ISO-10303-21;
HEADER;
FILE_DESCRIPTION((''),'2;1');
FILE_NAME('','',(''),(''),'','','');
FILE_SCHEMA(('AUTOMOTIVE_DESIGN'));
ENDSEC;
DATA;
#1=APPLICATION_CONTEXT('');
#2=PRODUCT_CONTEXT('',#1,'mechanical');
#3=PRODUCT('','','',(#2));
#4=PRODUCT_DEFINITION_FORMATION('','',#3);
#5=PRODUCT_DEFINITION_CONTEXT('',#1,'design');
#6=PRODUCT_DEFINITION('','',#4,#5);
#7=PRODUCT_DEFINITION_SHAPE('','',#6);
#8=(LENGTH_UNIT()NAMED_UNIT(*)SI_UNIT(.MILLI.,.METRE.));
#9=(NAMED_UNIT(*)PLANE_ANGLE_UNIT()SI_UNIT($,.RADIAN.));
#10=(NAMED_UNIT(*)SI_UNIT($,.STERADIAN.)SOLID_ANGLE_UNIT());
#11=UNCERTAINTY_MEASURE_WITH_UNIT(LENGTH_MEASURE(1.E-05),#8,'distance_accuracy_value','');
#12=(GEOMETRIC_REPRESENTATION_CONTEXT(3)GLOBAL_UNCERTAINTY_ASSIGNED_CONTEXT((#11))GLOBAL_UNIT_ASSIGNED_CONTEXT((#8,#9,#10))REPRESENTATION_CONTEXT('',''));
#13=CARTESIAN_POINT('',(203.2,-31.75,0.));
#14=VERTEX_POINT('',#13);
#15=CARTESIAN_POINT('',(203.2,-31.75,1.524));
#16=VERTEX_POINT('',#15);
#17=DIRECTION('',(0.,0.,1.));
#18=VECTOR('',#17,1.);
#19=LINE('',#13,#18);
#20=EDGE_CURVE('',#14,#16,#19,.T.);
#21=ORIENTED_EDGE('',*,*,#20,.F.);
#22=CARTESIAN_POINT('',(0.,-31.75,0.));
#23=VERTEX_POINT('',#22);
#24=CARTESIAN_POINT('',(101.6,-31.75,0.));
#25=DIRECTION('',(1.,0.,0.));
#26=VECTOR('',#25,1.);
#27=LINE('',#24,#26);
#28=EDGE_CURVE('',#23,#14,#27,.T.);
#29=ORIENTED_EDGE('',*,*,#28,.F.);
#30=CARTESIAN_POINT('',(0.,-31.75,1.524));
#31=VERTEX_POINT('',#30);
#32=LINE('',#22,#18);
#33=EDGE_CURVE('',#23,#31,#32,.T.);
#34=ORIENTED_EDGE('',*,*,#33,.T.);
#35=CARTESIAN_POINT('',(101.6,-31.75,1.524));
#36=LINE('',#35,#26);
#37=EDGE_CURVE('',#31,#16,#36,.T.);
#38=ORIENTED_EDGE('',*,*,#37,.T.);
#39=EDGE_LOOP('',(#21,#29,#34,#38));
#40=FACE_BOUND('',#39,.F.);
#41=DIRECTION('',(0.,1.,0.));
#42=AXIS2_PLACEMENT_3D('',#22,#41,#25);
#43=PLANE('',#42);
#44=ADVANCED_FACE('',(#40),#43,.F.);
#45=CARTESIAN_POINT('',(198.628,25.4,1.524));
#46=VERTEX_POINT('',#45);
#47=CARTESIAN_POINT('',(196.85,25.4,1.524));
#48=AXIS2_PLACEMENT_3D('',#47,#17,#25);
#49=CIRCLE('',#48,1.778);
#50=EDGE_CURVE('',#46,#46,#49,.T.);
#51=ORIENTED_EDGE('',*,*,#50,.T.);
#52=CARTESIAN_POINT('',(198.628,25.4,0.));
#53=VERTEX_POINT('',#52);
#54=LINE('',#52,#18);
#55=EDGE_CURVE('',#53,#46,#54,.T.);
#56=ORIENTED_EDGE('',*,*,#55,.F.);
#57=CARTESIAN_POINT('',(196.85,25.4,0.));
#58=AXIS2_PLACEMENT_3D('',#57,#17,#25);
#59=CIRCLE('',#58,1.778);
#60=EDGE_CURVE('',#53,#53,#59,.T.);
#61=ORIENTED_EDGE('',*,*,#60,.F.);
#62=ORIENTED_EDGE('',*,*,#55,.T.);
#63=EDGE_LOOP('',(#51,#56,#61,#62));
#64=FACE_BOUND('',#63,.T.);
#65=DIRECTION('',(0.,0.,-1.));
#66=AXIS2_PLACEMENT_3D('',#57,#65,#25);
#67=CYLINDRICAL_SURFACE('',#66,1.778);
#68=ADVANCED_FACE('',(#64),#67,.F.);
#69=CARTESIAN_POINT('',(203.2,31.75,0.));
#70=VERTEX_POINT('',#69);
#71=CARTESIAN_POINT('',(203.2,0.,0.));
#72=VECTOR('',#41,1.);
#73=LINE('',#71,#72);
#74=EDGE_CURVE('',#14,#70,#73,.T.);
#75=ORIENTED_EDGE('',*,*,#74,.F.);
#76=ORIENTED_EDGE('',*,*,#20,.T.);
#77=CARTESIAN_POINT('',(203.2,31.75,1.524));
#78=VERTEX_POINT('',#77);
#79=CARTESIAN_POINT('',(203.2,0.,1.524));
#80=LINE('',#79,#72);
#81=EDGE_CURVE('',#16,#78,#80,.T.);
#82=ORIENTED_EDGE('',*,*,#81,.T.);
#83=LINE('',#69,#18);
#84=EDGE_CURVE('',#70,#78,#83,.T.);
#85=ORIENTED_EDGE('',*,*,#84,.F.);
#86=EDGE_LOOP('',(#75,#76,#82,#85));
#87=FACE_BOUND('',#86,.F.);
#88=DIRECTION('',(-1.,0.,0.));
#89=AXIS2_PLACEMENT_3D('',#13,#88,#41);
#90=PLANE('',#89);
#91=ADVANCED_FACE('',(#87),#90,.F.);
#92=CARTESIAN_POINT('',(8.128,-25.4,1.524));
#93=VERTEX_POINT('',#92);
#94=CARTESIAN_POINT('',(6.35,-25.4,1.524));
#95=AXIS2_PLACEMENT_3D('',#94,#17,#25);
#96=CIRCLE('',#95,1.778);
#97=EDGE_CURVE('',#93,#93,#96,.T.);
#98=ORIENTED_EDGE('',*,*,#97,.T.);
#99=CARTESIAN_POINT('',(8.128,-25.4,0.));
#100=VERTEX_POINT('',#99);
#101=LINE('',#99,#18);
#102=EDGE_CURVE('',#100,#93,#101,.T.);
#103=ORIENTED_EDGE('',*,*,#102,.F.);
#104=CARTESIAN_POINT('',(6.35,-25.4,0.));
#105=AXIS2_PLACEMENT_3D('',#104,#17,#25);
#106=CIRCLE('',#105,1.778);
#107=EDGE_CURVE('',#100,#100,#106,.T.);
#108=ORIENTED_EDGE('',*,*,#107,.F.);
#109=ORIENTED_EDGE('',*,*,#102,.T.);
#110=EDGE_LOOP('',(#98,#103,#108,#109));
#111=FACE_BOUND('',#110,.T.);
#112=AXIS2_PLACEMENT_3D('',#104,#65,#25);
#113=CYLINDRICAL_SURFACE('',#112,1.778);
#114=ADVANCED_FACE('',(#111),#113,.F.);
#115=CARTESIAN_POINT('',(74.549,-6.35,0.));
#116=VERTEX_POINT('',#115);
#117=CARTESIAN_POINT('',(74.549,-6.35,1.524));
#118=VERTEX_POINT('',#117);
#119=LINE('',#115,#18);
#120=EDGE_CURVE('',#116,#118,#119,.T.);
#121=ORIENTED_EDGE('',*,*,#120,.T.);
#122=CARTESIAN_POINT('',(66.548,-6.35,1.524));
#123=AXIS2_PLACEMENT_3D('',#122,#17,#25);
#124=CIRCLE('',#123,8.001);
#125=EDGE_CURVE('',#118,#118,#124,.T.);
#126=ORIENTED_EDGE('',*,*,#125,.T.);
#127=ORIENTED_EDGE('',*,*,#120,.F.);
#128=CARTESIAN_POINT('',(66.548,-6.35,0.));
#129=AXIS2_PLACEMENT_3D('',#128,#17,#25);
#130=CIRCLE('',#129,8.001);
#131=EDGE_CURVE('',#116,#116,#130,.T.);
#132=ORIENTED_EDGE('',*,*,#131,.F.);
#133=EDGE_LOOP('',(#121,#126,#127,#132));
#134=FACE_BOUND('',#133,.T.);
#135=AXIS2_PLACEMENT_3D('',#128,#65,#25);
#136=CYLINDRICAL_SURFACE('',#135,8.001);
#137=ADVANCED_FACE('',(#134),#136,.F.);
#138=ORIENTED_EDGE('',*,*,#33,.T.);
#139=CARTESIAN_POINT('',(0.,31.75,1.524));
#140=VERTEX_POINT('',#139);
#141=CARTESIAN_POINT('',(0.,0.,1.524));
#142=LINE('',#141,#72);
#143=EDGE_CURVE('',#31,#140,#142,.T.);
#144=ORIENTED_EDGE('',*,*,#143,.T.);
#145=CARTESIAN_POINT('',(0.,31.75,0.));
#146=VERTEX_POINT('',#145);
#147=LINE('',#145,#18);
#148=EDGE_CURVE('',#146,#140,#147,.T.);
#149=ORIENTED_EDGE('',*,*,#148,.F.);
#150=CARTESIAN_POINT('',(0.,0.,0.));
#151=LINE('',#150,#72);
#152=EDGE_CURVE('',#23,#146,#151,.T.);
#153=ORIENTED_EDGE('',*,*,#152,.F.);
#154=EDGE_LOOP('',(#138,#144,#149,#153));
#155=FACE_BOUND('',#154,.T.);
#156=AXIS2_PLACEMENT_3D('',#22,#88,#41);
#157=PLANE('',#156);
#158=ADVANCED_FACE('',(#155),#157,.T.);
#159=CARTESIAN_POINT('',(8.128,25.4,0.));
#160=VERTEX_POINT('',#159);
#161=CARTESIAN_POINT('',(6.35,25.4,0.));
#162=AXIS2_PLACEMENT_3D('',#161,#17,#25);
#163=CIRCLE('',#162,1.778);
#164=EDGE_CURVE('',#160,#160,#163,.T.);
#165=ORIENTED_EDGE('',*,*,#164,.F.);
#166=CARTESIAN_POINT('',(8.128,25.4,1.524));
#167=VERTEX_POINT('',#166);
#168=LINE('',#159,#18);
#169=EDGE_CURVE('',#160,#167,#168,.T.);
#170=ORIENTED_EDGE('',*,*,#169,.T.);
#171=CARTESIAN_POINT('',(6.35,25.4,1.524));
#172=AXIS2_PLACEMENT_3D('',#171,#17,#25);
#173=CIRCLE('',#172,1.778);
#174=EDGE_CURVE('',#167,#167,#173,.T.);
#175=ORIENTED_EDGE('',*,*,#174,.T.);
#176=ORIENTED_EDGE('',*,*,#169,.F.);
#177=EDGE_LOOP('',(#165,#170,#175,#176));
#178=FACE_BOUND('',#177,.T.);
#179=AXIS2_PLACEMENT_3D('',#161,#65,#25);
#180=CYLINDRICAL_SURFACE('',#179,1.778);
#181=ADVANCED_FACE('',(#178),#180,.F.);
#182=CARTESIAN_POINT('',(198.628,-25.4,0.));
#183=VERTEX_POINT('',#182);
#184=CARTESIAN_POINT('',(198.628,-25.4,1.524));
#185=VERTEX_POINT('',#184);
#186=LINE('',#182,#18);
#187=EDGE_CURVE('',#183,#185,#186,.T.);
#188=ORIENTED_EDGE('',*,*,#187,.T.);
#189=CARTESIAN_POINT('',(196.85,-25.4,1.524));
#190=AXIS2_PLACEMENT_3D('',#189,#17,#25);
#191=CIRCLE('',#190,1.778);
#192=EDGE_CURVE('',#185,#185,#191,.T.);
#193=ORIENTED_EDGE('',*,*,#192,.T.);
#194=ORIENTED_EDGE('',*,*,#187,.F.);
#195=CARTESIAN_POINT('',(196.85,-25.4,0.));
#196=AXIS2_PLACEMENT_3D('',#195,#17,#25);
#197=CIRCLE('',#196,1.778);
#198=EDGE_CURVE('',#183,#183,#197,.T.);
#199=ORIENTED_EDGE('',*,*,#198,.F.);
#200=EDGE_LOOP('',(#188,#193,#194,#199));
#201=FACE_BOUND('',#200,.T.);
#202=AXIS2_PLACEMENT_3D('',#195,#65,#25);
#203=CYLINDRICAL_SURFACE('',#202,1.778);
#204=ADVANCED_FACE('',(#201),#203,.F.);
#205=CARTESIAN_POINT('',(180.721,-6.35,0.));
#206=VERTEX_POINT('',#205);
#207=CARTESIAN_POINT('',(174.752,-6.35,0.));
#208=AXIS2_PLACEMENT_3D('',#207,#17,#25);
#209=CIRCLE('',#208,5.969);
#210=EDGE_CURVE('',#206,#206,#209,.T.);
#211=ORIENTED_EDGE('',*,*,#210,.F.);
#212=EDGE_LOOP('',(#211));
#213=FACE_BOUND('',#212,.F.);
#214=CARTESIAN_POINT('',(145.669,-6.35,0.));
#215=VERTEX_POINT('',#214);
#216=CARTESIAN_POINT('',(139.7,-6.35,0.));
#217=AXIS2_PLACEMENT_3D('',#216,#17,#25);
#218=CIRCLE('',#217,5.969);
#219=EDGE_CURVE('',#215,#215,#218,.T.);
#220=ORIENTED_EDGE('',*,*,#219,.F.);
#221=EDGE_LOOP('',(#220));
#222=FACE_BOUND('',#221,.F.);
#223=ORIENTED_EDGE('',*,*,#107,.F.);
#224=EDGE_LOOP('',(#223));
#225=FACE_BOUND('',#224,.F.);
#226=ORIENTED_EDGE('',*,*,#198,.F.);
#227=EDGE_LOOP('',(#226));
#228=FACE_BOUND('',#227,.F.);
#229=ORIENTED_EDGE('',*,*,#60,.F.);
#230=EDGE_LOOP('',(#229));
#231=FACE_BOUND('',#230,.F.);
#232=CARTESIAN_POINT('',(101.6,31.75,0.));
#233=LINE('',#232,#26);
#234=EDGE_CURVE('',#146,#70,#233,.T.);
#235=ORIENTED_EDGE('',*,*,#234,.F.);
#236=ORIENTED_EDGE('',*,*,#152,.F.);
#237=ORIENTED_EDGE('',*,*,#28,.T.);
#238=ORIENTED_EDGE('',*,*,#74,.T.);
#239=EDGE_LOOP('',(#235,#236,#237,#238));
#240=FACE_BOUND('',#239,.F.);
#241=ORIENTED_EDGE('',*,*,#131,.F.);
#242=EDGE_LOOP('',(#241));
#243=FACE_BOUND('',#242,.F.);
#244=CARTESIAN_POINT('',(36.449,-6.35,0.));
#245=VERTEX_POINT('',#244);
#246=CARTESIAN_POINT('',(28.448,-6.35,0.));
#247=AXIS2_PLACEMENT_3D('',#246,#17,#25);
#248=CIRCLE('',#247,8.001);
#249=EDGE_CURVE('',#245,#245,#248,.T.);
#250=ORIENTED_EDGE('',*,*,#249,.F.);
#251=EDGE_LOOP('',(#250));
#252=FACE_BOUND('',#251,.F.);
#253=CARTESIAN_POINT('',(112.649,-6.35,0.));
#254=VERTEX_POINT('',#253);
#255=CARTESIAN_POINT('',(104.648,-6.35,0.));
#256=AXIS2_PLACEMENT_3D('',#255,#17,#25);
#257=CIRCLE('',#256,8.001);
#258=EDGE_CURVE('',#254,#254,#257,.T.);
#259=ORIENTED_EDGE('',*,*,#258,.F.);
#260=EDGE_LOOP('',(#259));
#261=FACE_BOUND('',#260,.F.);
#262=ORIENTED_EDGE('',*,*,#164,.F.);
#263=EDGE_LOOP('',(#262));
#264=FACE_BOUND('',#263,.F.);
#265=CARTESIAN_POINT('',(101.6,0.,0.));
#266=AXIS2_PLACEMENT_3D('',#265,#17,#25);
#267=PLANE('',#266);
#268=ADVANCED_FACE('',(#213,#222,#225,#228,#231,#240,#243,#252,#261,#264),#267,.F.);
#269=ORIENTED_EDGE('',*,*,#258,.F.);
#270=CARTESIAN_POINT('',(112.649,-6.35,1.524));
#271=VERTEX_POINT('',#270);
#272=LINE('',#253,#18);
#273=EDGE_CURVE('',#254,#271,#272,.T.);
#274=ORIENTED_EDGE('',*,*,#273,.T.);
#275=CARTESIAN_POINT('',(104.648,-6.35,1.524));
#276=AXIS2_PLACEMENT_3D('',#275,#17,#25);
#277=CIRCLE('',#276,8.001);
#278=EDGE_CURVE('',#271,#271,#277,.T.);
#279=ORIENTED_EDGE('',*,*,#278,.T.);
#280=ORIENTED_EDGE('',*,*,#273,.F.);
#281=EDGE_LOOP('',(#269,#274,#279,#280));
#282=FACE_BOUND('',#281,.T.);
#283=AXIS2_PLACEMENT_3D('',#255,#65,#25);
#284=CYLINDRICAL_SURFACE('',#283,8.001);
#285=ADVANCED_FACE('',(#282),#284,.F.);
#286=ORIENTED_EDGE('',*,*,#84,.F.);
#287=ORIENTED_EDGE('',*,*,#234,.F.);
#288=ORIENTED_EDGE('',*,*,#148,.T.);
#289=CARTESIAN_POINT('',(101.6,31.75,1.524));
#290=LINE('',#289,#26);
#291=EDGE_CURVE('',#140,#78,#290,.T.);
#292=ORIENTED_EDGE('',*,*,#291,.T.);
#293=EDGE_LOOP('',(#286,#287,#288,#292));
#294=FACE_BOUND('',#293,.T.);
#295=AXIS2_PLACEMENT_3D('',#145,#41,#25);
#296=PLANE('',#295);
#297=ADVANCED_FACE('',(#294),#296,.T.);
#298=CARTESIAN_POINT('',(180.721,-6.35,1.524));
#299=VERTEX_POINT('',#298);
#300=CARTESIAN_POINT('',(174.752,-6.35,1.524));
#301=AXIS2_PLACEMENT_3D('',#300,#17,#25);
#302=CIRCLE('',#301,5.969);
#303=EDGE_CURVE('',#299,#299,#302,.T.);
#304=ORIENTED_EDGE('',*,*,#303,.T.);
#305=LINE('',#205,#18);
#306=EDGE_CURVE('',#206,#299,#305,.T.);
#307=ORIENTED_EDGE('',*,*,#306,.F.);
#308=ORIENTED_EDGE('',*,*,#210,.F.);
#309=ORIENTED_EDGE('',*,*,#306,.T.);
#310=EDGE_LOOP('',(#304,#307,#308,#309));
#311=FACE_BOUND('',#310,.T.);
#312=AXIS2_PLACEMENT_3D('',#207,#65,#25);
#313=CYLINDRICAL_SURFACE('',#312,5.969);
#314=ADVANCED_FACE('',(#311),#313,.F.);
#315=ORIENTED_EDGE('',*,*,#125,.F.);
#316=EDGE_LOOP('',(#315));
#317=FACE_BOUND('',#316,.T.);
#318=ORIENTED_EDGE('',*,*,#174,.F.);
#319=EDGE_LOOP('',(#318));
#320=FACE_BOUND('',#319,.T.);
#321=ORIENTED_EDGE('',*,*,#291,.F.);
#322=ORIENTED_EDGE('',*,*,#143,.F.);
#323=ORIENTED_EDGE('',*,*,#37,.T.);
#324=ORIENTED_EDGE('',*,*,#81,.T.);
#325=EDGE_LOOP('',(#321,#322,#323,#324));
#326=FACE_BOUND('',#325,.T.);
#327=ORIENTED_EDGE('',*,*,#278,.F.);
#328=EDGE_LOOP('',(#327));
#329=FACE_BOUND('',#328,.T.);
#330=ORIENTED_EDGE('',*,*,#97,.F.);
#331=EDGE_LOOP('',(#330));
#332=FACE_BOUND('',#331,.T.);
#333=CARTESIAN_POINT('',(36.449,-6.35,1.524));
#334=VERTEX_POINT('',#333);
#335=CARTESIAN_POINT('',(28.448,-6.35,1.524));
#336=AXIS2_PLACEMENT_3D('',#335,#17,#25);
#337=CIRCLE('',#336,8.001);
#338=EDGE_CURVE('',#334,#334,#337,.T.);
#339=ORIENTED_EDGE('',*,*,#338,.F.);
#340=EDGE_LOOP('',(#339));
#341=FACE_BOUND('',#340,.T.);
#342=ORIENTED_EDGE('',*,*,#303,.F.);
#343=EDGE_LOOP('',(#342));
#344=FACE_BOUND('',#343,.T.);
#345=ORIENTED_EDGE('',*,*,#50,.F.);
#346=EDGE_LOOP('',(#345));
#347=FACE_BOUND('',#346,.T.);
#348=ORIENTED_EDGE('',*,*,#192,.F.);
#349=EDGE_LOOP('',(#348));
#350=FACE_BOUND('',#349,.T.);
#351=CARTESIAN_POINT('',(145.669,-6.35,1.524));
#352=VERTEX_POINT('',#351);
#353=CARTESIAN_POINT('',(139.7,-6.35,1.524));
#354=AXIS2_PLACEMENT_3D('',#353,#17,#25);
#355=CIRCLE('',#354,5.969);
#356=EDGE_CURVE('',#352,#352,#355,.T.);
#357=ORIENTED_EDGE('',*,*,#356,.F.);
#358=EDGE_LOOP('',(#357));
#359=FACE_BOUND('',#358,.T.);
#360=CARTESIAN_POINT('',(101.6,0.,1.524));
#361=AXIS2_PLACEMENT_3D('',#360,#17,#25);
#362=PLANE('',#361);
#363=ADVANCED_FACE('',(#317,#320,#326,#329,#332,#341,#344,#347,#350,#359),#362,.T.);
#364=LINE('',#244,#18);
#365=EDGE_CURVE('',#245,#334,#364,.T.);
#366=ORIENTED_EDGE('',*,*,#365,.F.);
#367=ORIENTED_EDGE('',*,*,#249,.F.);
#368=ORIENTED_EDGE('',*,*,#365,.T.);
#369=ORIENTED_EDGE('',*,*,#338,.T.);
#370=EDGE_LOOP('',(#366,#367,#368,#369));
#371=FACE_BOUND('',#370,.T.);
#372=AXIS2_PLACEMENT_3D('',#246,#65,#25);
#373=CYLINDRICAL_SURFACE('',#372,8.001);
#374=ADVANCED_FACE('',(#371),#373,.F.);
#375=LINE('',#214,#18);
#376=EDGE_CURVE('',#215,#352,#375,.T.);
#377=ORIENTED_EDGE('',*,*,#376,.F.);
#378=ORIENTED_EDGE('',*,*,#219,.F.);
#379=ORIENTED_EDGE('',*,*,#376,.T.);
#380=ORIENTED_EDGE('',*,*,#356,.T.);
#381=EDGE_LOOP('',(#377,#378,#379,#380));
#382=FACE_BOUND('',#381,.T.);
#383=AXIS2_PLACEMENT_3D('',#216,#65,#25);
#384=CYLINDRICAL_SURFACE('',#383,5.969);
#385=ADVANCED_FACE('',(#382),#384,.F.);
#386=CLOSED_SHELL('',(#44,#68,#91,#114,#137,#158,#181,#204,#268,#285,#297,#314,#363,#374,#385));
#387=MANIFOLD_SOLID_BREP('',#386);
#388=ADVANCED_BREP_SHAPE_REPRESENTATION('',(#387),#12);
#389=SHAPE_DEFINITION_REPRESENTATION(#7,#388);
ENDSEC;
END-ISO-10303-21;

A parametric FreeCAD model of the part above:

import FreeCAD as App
import Part
import Sketcher
Q = App.Units.Quantity

doc = App.newDocument("Part")
body = doc.addObject("PartDesign::Body", "Body")

# Sketch on XY plane
sketch1 = body.newObject("Sketcher::SketchObject", "Sketch")
sketch1.AttachmentSupport = (doc.getObject("XY_Plane"), [""])
sketch1.MapMode = "FlatFace"
sketch1.addGeometry(Part.LineSegment(App.Vector(0, 31.8, 0), App.Vector(0, -31.8, 0)), False)
sketch1.addGeometry(Part.LineSegment(App.Vector(0, -31.8, 0), App.Vector(203.2, -31.8, 0)), False)
sketch1.addGeometry(Part.LineSegment(App.Vector(203.2, -31.8, 0), App.Vector(203.2, 31.8, 0)), False)
sketch1.addGeometry(Part.LineSegment(App.Vector(203.2, 31.8, 0), App.Vector(0, 31.8, 0)), False)
sketch1.addGeometry(Part.Circle(App.Vector(6.3, -25.4, 0), App.Vector(0, 0, 1), 1.8), False)
sketch1.addGeometry(Part.Circle(App.Vector(28.4, -6.3, 0), App.Vector(0, 0, 1), 8), False)
sketch1.addGeometry(Part.Circle(App.Vector(66.5, -6.3, 0), App.Vector(0, 0, 1), 8), False)
sketch1.addGeometry(Part.Circle(App.Vector(196.8, -25.4, 0), App.Vector(0, 0, 1), 1.8), False)
sketch1.addGeometry(Part.Circle(App.Vector(104.6, -6.3, 0), App.Vector(0, 0, 1), 8), False)
sketch1.addGeometry(Part.Circle(App.Vector(139.7, -6.3, 0), App.Vector(0, 0, 1), 6), False)
sketch1.addGeometry(Part.Circle(App.Vector(174.8, -6.3, 0), App.Vector(0, 0, 1), 6), False)
sketch1.addGeometry(Part.Circle(App.Vector(6.3, 25.4, 0), App.Vector(0, 0, 1), 1.8), False)
sketch1.addGeometry(Part.Circle(App.Vector(196.8, 25.4, 0), App.Vector(0, 0, 1), 1.8), False)
sketch1.addConstraint(Sketcher.Constraint("Coincident", 0, 2, 1, 1))
sketch1.addConstraint(Sketcher.Constraint("Coincident", 1, 2, 2, 1))
sketch1.addConstraint(Sketcher.Constraint("Coincident", 2, 2, 3, 1))
sketch1.addConstraint(Sketcher.Constraint("Coincident", 3, 2, 0, 1))
sketch1.addConstraint(Sketcher.Constraint("Vertical", 0))
sketch1.addConstraint(Sketcher.Constraint("Horizontal", 1))
sketch1.addConstraint(Sketcher.Constraint("Vertical", 2))
sketch1.addConstraint(Sketcher.Constraint("Horizontal", 3))
sketch1.addConstraint(Sketcher.Constraint("Equal", 5, 6))
sketch1.addConstraint(Sketcher.Constraint("Equal", 4, 7))
sketch1.addConstraint(Sketcher.Constraint("Equal", 6, 8))
sketch1.addConstraint(Sketcher.Constraint("Equal", 9, 10))
sketch1.addConstraint(Sketcher.Constraint("Equal", 7, 11))
sketch1.addConstraint(Sketcher.Constraint("Equal", 11, 12))
sketch1.addConstraint(Sketcher.Constraint("Symmetric", 0, 2, 3, 2, -1, 1))
sketch1.addConstraint(Sketcher.Constraint("Symmetric", 4, 3, 11, 3, -1))
sketch1.addConstraint(Sketcher.Constraint("Symmetric", 7, 3, 12, 3, -1))
sketch1.addConstraint(Sketcher.Constraint("Horizontal", 5, 3, 6, 3))
sketch1.addConstraint(Sketcher.Constraint("Horizontal", 4, 3, 7, 3))
sketch1.addConstraint(Sketcher.Constraint("Horizontal", 6, 3, 8, 3))
sketch1.addConstraint(Sketcher.Constraint("Horizontal", 8, 3, 9, 3))
sketch1.addConstraint(Sketcher.Constraint("Horizontal", 9, 3, 10, 3))
sketch1.addConstraint(Sketcher.Constraint("Diameter", 4, Q("0.14 in")))
sketch1.addConstraint(Sketcher.Constraint("Diameter", 5, Q("0.63 in")))
sketch1.addConstraint(Sketcher.Constraint("Diameter", 9, Q("0.47 in")))
sketch1.addConstraint(Sketcher.Constraint("DistanceX", 1, 1, 1, 2, Q("8 in")))
sketch1.addConstraint(Sketcher.Constraint("DistanceY", 0, 2, 0, 1, Q("2.5 in")))
sketch1.addConstraint(Sketcher.Constraint("DistanceY", 4, 3, -1, 1, Q("1 in")))
sketch1.addConstraint(Sketcher.Constraint("DistanceX", 5, 3, 8, 3, Q("3 in")))
sketch1.addConstraint(Sketcher.Constraint("DistanceY", 0, 2, 5, 3, Q("1 in")))
sketch1.addConstraint(Sketcher.Constraint("DistanceX", -1, 1, 9, 3, Q("5.5 in")))
sketch1.addConstraint(Sketcher.Constraint("DistanceX", 5, 3, 6, 3, Q("1.5 in")))
sketch1.addConstraint(Sketcher.Constraint("DistanceX", 4, 3, 7, 3, Q("7.5 in")))
sketch1.addConstraint(Sketcher.Constraint("DistanceX", -1, 1, 4, 3, Q("0.25 in")))
sketch1.addConstraint(Sketcher.Constraint("DistanceX", -1, 1, 5, 3, Q("1.12 in")))
sketch1.addConstraint(Sketcher.Constraint("DistanceX", -1, 1, 10, 3, Q("6.88 in")))
pad1 = body.newObject("PartDesign::Pad", "Pad")
pad1.Profile = sketch1
pad1.Length = Q("0.06 in")

doc.recompute()
